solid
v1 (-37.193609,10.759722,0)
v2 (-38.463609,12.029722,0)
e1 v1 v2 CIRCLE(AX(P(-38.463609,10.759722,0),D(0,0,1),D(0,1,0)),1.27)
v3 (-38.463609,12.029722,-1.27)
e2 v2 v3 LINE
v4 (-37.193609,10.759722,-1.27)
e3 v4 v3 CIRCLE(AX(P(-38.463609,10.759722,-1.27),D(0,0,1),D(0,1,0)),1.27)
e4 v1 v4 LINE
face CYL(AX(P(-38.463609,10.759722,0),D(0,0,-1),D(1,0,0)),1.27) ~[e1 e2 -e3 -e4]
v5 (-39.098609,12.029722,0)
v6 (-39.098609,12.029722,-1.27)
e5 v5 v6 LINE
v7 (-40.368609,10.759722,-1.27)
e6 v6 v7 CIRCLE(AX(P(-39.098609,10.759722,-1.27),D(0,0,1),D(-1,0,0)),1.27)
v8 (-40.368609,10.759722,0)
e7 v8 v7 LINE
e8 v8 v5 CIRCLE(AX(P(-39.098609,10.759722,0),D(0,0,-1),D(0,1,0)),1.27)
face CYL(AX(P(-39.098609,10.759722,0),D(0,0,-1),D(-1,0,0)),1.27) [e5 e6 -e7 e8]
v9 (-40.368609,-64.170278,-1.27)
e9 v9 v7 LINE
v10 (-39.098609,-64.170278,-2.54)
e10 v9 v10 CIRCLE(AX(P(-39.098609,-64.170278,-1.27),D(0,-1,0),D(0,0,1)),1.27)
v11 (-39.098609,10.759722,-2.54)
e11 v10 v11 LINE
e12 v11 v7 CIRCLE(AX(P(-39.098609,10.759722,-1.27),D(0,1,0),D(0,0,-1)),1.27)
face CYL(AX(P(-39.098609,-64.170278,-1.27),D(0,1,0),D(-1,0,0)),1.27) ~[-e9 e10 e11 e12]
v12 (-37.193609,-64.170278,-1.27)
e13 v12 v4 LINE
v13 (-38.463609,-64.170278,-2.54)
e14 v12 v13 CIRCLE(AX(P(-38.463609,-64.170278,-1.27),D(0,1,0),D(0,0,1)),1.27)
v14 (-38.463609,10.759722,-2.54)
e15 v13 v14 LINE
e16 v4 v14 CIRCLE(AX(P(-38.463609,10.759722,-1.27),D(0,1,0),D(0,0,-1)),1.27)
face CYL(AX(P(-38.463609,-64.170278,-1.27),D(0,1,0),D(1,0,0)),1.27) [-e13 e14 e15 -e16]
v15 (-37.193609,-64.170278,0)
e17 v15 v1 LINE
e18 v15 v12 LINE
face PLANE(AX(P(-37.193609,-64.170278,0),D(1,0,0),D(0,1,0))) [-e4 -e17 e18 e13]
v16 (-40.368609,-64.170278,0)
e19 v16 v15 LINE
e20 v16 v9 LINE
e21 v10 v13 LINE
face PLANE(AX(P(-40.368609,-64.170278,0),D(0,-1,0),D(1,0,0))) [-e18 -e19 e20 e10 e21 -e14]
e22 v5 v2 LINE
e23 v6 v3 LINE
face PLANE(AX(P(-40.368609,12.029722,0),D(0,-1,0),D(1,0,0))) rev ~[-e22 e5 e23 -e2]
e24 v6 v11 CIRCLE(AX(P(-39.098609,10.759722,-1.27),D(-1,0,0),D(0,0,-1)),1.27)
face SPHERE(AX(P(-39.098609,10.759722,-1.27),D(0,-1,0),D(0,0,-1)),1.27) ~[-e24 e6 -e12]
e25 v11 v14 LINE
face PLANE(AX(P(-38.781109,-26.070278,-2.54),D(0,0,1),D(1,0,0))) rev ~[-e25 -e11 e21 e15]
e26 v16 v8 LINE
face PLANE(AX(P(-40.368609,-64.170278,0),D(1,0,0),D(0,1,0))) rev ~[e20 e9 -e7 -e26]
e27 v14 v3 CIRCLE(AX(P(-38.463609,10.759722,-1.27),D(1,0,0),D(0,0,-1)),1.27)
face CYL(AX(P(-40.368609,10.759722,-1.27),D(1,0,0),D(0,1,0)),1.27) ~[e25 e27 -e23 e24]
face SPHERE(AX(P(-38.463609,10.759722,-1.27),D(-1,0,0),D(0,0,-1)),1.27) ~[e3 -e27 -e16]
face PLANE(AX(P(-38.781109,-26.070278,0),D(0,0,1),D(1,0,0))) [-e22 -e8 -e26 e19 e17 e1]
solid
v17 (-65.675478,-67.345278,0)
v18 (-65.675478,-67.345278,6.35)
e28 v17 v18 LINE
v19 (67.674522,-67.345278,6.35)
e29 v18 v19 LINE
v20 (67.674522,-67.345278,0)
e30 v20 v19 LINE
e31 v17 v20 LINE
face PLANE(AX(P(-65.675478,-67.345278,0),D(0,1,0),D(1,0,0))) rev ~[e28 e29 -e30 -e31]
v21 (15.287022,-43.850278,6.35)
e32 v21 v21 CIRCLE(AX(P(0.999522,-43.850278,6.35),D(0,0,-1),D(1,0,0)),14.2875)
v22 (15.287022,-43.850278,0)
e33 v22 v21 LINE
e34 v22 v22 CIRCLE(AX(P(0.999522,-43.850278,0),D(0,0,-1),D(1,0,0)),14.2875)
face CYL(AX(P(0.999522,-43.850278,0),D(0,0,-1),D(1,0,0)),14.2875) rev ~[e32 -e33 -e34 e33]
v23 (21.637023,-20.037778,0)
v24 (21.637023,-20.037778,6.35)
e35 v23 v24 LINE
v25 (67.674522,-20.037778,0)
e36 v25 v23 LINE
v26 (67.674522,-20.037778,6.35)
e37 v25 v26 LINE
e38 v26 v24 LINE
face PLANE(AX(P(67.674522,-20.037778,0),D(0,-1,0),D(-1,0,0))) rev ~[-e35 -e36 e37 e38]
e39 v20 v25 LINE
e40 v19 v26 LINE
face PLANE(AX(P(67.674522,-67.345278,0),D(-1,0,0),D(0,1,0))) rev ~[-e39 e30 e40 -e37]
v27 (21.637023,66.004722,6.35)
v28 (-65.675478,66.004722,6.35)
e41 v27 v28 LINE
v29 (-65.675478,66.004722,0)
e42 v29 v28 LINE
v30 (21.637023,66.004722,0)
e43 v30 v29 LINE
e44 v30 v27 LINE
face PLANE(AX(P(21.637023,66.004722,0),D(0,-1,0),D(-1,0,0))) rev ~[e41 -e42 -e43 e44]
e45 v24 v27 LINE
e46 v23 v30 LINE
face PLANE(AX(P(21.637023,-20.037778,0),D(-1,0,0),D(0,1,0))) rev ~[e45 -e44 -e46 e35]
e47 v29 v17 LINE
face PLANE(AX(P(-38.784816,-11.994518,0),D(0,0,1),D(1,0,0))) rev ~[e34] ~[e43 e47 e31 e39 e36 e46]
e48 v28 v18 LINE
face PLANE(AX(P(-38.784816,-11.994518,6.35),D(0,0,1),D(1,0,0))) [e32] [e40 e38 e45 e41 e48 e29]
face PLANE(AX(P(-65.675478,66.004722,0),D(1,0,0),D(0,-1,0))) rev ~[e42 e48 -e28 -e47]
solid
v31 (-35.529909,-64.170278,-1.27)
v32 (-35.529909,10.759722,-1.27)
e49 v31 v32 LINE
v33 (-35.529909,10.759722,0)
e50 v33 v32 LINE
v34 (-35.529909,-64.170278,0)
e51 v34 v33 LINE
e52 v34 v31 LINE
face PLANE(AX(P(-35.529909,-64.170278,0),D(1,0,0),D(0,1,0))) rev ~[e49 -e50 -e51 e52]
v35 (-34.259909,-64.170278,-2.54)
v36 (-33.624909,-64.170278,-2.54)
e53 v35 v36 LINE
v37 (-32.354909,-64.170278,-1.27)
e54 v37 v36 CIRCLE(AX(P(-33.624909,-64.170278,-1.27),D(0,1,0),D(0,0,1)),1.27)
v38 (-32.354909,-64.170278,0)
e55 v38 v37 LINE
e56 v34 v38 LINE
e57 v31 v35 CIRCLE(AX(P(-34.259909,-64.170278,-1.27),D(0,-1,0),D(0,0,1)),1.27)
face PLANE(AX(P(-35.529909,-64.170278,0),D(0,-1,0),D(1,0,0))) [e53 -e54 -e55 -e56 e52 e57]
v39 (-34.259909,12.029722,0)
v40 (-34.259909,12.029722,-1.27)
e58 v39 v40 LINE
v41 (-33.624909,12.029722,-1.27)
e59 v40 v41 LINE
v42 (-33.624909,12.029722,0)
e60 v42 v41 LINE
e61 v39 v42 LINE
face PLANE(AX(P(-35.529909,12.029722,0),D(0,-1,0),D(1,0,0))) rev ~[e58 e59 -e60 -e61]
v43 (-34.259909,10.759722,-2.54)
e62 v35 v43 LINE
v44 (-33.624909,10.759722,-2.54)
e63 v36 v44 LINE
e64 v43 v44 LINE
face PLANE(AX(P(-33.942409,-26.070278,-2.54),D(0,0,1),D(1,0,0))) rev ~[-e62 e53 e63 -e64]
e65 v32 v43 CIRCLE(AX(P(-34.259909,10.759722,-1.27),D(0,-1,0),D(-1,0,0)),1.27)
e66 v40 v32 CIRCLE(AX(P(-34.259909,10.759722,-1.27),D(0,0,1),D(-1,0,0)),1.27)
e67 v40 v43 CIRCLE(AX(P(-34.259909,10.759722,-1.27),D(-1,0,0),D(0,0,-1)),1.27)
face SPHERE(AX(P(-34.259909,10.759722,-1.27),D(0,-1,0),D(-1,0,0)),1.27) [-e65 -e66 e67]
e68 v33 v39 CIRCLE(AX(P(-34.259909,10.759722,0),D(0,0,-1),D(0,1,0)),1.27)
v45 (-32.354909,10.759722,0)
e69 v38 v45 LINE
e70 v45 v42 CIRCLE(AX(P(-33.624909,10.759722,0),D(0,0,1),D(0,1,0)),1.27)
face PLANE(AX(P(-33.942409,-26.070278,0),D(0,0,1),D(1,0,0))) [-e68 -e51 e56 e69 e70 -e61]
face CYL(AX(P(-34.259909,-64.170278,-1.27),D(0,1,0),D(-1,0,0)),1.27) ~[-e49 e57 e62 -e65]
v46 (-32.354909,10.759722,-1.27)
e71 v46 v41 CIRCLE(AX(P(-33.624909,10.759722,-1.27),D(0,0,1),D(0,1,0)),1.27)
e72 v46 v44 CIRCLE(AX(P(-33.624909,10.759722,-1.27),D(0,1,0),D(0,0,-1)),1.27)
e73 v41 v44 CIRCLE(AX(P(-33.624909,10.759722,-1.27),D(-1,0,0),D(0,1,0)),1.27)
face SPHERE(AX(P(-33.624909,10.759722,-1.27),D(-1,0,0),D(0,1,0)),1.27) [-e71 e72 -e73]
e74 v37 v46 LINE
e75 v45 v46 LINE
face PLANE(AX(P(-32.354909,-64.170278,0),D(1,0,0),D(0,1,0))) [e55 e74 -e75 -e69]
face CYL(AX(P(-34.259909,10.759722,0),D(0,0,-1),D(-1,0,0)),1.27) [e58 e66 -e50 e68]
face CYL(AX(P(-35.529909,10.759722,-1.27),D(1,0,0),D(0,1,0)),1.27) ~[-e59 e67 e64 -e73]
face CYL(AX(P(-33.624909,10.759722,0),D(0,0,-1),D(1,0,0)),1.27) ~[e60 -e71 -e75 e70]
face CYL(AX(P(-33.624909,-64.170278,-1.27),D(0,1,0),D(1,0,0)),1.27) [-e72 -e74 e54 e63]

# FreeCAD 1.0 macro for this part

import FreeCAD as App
import Part
import Sketcher

V = App.Vector
Q = App.Units.Quantity


def edges_at(feature, points):
    """Names of the edges that pass closest to the given points."""
    edges = feature.Shape.Edges
    near = lambda p: min(range(len(edges)), key=lambda i: edges[i].distToShape(Part.Vertex(*p))[0])
    return sorted({f"Edge{near(p) + 1}" for p in points})

doc = App.newDocument("Part")
params = doc.addObject("Spreadsheet::Sheet", "Params")
for row, (alias, value) in enumerate([
    ("sketch1_height", "3 in"),
    ("sketch1_width", "0.125 in"),
    ("pad1_length", "0.1 in"),
    ("fillet_radius", "0.05 in"),
    ("sketch2_height", "3 in"),
    ("sketch2_width", "0.125 in"),
    ("pad2_length", "0.1 in"),
    ("fillet2_radius", "0.05 in"),
    ("sketch3_diameter", "1.125 in"),
    ("sketch3_width", "5.25 in"),
    ("sketch3_width2", "1.8125 in"),
    ("pad3_length", "0.25 in"),
], start=1):
    params.set(f"A{row}", alias)
    params.set(f"B{row}", "=" + value)
    params.setAlias(f"B{row}", alias)

body = doc.addObject("PartDesign::Body", "Body")

# Sketch on XY plane
sketch1 = body.newObject("Sketcher::SketchObject", "Sketch")
sketch1.AttachmentSupport = (doc.getObject("XY_Plane"), [""])
sketch1.MapMode = "FlatFace"
sketch1.addGeometry([
    Part.LineSegment(V(-35.529909, 12.029722, 0), V(-35.529909, -64.170278, 0)),
    Part.LineSegment(V(-35.529909, -64.170278, 0), V(-32.354909, -64.170278, 0)),
    Part.LineSegment(V(-32.354909, -64.170278, 0), V(-32.354909, 12.029722, 0)),
    Part.LineSegment(V(-32.354909, 12.029722, 0), V(-35.529909, 12.029722, 0)),
], False)
sketch1.addConstraint([
    Sketcher.Constraint("Coincident", 0, 2, 1, 1),
    Sketcher.Constraint("Coincident", 1, 2, 2, 1),
    Sketcher.Constraint("Coincident", 2, 2, 3, 1),
    Sketcher.Constraint("Coincident", 3, 2, 0, 1),
    Sketcher.Constraint("Vertical", 0),
    Sketcher.Constraint("Horizontal", 1),
    Sketcher.Constraint("Vertical", 2),
    Sketcher.Constraint("Horizontal", 3),
    Sketcher.Constraint("DistanceY", 0, 2, 0, 1, Q("3 in")),
    Sketcher.Constraint("DistanceX", 1, 1, 1, 2, Q("0.125 in")),
    Sketcher.Constraint("DistanceX", 0, 2, -1, 1, 35.529909),
    Sketcher.Constraint("DistanceY", 0, 2, -1, 1, 64.170278),
])
sketch1.setExpression("Constraints[8]", "Params.sketch1_height")
sketch1.setExpression("Constraints[9]", "Params.sketch1_width")
pad1 = body.newObject("PartDesign::Pad", "Pad")
pad1.Profile = sketch1
pad1.setExpression("Length", "Params.pad1_length")
pad1.Reversed = True
doc.recompute()

fillet = body.newObject("PartDesign::Fillet", "Fillet")
fillet.Base = (pad1, edges_at(pad1, [
    (-35.53, -26.07, -2.54),
    (-35.53, 12.03, -1.27),
    (-33.942, 12.03, -2.54),
    (-32.355, 12.03, -1.27),
    (-32.355, -26.07, -2.54),
]))
fillet.setExpression("Radius", "Params.fillet_radius")
body2 = doc.addObject("PartDesign::Body", "Body001")

# Sketch on XY plane
sketch2 = body2.newObject("Sketcher::SketchObject", "Sketch001")
sketch2.AttachmentSupport = (doc.getObject("XY_Plane001"), [""])
sketch2.MapMode = "FlatFace"
sketch2.addGeometry([
    Part.LineSegment(V(-40.368609, 12.029722, 0), V(-40.368609, -64.170278, 0)),
    Part.LineSegment(V(-40.368609, -64.170278, 0), V(-37.193609, -64.170278, 0)),
    Part.LineSegment(V(-37.193609, -64.170278, 0), V(-37.193609, 12.029722, 0)),
    Part.LineSegment(V(-37.193609, 12.029722, 0), V(-40.368609, 12.029722, 0)),
], False)
sketch2.addConstraint([
    Sketcher.Constraint("Coincident", 0, 2, 1, 1),
    Sketcher.Constraint("Coincident", 1, 2, 2, 1),
    Sketcher.Constraint("Coincident", 2, 2, 3, 1),
    Sketcher.Constraint("Coincident", 3, 2, 0, 1),
    Sketcher.Constraint("Vertical", 0),
    Sketcher.Constraint("Horizontal", 1),
    Sketcher.Constraint("Vertical", 2),
    Sketcher.Constraint("Horizontal", 3),
    Sketcher.Constraint("DistanceY", 0, 2, 0, 1, Q("3 in")),
    Sketcher.Constraint("DistanceX", 1, 1, 1, 2, Q("0.125 in")),
    Sketcher.Constraint("DistanceX", 0, 2, -1, 1, 40.368609),
    Sketcher.Constraint("DistanceY", 0, 2, -1, 1, 64.170278),
])
sketch2.setExpression("Constraints[8]", "Params.sketch2_height")
sketch2.setExpression("Constraints[9]", "Params.sketch2_width")
pad2 = body2.newObject("PartDesign::Pad", "Pad001")
pad2.Profile = sketch2
pad2.setExpression("Length", "Params.pad2_length")
pad2.Reversed = True
doc.recompute()

fillet2 = body2.newObject("PartDesign::Fillet", "Fillet001")
fillet2.Base = (pad2, edges_at(pad2, [
    (-40.369, -26.07, -2.54),
    (-38.781, 12.03, -2.54),
    (-40.369, 12.03, -1.27),
    (-37.194, -26.07, -2.54),
    (-37.194, 12.03, -1.27),
]))
fillet2.setExpression("Radius", "Params.fillet2_radius")
body3 = doc.addObject("PartDesign::Body", "Body002")

# Sketch on XY plane
sketch3 = body3.newObject("Sketcher::SketchObject", "Sketch002")
sketch3.AttachmentSupport = (doc.getObject("XY_Plane002"), [""])
sketch3.MapMode = "FlatFace"
sketch3.addGeometry([
    Part.LineSegment(V(-65.675478, 66.004722, 0), V(-65.675478, -67.345278, 0)),  # 0
    Part.LineSegment(V(-65.675478, -67.345278, 0), V(67.674522, -67.345278, 0)),  # 1
    Part.LineSegment(V(67.674522, -67.345278, 0), V(67.674522, -20.037778, 0)),  # 2
    Part.LineSegment(V(67.674522, -20.037778, 0), V(21.637023, -20.037778, 0)),  # 3
    Part.LineSegment(V(21.637023, -20.037778, 0), V(21.637023, 66.004722, 0)),  # 4
    Part.LineSegment(V(21.637023, 66.004722, 0), V(-65.675478, 66.004722, 0)),  # 5
    Part.Circle(V(0.999522, -43.850278, 0), V(0, 0, 1), 14.2875),  # 6
], False)
sketch3.addConstraint([
    Sketcher.Constraint("Coincident", 0, 2, 1, 1),
    Sketcher.Constraint("Coincident", 1, 2, 2, 1),
    Sketcher.Constraint("Coincident", 2, 2, 3, 1),
    Sketcher.Constraint("Coincident", 3, 2, 4, 1),
    Sketcher.Constraint("Coincident", 4, 2, 5, 1),
    Sketcher.Constraint("Coincident", 5, 2, 0, 1),
    Sketcher.Constraint("Vertical", 0),
    Sketcher.Constraint("Horizontal", 1),
    Sketcher.Constraint("Vertical", 2),
    Sketcher.Constraint("Horizontal", 3),
    Sketcher.Constraint("Vertical", 4),
    Sketcher.Constraint("Horizontal", 5),
    Sketcher.Constraint("Equal", 1, 0),
    Sketcher.Constraint("Diameter", 6, Q("1.125 in")),
    Sketcher.Constraint("DistanceX", 1, 1, 1, 2, Q("5.25 in")),
    Sketcher.Constraint("DistanceX", 3, 2, 3, 1, Q("1.8125 in")),
    Sketcher.Constraint("DistanceY", 2, 1, 2, 2, Q("1.8625 in")),
    Sketcher.Constraint("DistanceX", 0, 2, 6, 3, Q("2.625 in")),
    Sketcher.Constraint("DistanceY", 0, 2, 6, 3, Q("0.925 in")),
    Sketcher.Constraint("DistanceX", -1, 1, 6, 3, 0.999522),
    Sketcher.Constraint("DistanceY", 6, 3, -1, 1, 43.850278),
])
sketch3.setExpression("Constraints[13]", "Params.sketch3_diameter")
sketch3.setExpression("Constraints[14]", "Params.sketch3_width")
sketch3.setExpression("Constraints[15]", "Params.sketch3_width2")
pad3 = body3.newObject("PartDesign::Pad", "Pad002")
pad3.Profile = sketch3
pad3.setExpression("Length", "Params.pad3_length")

doc.recompute()
